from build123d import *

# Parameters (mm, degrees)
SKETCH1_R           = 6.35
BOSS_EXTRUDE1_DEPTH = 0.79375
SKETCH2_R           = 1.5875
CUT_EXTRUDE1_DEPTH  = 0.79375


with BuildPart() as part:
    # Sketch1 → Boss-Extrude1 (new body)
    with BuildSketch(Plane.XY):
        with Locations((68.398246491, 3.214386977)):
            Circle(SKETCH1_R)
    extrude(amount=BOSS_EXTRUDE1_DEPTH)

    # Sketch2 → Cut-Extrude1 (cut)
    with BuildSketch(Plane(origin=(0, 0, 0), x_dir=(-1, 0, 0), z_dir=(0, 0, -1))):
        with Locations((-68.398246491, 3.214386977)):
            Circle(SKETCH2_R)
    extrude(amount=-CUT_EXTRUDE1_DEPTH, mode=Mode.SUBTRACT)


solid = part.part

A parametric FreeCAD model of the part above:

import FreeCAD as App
import Part
import Sketcher

V = App.Vector
Q = App.Units.Quantity

doc = App.newDocument("Part")
body = doc.addObject("PartDesign::Body", "Body")

# Sketch on XY plane
sketch1 = body.newObject("Sketcher::SketchObject", "Sketch")
sketch1.AttachmentSupport = (doc.getObject("XY_Plane"), [""])
sketch1.MapMode = "FlatFace"
sketch1.addGeometry(Part.Circle(V(68, 3, 0), V(0, 0, 1), 6), False)
sketch1.addConstraint([
    Sketcher.Constraint("Diameter", 0, Q("0.5 in")),
    Sketcher.Constraint("DistanceX", -1, 1, 0, 3, Q("68.398246 mm")),
    Sketcher.Constraint("DistanceY", -1, 1, 0, 3, Q("3.214387 mm")),
])
pad1 = body.newObject("PartDesign::Pad", "Pad")
pad1.Profile = sketch1
pad1.Length = Q("0.03125 in")

# Sketch on XY plane
sketch2 = body.newObject("Sketcher::SketchObject", "Sketch001")
sketch2.AttachmentSupport = (doc.getObject("XY_Plane"), [""])
sketch2.MapMode = "FlatFace"
sketch2.addGeometry(Part.Circle(V(68.4, 3.2, 0), V(0, 0, 1), 1.6), False)
sketch2.addConstraint([
    Sketcher.Constraint("Diameter", 0, Q("0.125 in")),
    Sketcher.Constraint("DistanceX", -1, 1, 0, 3, Q("68.398246 mm")),
    Sketcher.Constraint("DistanceY", -1, 1, 0, 3, Q("3.214387 mm")),
])
pocket1 = body.newObject("PartDesign::Pocket", "Pocket")
pocket1.Profile = sketch2
pocket1.Length = Q("0.03125 in")
pocket1.Reversed = True

doc.recompute()
